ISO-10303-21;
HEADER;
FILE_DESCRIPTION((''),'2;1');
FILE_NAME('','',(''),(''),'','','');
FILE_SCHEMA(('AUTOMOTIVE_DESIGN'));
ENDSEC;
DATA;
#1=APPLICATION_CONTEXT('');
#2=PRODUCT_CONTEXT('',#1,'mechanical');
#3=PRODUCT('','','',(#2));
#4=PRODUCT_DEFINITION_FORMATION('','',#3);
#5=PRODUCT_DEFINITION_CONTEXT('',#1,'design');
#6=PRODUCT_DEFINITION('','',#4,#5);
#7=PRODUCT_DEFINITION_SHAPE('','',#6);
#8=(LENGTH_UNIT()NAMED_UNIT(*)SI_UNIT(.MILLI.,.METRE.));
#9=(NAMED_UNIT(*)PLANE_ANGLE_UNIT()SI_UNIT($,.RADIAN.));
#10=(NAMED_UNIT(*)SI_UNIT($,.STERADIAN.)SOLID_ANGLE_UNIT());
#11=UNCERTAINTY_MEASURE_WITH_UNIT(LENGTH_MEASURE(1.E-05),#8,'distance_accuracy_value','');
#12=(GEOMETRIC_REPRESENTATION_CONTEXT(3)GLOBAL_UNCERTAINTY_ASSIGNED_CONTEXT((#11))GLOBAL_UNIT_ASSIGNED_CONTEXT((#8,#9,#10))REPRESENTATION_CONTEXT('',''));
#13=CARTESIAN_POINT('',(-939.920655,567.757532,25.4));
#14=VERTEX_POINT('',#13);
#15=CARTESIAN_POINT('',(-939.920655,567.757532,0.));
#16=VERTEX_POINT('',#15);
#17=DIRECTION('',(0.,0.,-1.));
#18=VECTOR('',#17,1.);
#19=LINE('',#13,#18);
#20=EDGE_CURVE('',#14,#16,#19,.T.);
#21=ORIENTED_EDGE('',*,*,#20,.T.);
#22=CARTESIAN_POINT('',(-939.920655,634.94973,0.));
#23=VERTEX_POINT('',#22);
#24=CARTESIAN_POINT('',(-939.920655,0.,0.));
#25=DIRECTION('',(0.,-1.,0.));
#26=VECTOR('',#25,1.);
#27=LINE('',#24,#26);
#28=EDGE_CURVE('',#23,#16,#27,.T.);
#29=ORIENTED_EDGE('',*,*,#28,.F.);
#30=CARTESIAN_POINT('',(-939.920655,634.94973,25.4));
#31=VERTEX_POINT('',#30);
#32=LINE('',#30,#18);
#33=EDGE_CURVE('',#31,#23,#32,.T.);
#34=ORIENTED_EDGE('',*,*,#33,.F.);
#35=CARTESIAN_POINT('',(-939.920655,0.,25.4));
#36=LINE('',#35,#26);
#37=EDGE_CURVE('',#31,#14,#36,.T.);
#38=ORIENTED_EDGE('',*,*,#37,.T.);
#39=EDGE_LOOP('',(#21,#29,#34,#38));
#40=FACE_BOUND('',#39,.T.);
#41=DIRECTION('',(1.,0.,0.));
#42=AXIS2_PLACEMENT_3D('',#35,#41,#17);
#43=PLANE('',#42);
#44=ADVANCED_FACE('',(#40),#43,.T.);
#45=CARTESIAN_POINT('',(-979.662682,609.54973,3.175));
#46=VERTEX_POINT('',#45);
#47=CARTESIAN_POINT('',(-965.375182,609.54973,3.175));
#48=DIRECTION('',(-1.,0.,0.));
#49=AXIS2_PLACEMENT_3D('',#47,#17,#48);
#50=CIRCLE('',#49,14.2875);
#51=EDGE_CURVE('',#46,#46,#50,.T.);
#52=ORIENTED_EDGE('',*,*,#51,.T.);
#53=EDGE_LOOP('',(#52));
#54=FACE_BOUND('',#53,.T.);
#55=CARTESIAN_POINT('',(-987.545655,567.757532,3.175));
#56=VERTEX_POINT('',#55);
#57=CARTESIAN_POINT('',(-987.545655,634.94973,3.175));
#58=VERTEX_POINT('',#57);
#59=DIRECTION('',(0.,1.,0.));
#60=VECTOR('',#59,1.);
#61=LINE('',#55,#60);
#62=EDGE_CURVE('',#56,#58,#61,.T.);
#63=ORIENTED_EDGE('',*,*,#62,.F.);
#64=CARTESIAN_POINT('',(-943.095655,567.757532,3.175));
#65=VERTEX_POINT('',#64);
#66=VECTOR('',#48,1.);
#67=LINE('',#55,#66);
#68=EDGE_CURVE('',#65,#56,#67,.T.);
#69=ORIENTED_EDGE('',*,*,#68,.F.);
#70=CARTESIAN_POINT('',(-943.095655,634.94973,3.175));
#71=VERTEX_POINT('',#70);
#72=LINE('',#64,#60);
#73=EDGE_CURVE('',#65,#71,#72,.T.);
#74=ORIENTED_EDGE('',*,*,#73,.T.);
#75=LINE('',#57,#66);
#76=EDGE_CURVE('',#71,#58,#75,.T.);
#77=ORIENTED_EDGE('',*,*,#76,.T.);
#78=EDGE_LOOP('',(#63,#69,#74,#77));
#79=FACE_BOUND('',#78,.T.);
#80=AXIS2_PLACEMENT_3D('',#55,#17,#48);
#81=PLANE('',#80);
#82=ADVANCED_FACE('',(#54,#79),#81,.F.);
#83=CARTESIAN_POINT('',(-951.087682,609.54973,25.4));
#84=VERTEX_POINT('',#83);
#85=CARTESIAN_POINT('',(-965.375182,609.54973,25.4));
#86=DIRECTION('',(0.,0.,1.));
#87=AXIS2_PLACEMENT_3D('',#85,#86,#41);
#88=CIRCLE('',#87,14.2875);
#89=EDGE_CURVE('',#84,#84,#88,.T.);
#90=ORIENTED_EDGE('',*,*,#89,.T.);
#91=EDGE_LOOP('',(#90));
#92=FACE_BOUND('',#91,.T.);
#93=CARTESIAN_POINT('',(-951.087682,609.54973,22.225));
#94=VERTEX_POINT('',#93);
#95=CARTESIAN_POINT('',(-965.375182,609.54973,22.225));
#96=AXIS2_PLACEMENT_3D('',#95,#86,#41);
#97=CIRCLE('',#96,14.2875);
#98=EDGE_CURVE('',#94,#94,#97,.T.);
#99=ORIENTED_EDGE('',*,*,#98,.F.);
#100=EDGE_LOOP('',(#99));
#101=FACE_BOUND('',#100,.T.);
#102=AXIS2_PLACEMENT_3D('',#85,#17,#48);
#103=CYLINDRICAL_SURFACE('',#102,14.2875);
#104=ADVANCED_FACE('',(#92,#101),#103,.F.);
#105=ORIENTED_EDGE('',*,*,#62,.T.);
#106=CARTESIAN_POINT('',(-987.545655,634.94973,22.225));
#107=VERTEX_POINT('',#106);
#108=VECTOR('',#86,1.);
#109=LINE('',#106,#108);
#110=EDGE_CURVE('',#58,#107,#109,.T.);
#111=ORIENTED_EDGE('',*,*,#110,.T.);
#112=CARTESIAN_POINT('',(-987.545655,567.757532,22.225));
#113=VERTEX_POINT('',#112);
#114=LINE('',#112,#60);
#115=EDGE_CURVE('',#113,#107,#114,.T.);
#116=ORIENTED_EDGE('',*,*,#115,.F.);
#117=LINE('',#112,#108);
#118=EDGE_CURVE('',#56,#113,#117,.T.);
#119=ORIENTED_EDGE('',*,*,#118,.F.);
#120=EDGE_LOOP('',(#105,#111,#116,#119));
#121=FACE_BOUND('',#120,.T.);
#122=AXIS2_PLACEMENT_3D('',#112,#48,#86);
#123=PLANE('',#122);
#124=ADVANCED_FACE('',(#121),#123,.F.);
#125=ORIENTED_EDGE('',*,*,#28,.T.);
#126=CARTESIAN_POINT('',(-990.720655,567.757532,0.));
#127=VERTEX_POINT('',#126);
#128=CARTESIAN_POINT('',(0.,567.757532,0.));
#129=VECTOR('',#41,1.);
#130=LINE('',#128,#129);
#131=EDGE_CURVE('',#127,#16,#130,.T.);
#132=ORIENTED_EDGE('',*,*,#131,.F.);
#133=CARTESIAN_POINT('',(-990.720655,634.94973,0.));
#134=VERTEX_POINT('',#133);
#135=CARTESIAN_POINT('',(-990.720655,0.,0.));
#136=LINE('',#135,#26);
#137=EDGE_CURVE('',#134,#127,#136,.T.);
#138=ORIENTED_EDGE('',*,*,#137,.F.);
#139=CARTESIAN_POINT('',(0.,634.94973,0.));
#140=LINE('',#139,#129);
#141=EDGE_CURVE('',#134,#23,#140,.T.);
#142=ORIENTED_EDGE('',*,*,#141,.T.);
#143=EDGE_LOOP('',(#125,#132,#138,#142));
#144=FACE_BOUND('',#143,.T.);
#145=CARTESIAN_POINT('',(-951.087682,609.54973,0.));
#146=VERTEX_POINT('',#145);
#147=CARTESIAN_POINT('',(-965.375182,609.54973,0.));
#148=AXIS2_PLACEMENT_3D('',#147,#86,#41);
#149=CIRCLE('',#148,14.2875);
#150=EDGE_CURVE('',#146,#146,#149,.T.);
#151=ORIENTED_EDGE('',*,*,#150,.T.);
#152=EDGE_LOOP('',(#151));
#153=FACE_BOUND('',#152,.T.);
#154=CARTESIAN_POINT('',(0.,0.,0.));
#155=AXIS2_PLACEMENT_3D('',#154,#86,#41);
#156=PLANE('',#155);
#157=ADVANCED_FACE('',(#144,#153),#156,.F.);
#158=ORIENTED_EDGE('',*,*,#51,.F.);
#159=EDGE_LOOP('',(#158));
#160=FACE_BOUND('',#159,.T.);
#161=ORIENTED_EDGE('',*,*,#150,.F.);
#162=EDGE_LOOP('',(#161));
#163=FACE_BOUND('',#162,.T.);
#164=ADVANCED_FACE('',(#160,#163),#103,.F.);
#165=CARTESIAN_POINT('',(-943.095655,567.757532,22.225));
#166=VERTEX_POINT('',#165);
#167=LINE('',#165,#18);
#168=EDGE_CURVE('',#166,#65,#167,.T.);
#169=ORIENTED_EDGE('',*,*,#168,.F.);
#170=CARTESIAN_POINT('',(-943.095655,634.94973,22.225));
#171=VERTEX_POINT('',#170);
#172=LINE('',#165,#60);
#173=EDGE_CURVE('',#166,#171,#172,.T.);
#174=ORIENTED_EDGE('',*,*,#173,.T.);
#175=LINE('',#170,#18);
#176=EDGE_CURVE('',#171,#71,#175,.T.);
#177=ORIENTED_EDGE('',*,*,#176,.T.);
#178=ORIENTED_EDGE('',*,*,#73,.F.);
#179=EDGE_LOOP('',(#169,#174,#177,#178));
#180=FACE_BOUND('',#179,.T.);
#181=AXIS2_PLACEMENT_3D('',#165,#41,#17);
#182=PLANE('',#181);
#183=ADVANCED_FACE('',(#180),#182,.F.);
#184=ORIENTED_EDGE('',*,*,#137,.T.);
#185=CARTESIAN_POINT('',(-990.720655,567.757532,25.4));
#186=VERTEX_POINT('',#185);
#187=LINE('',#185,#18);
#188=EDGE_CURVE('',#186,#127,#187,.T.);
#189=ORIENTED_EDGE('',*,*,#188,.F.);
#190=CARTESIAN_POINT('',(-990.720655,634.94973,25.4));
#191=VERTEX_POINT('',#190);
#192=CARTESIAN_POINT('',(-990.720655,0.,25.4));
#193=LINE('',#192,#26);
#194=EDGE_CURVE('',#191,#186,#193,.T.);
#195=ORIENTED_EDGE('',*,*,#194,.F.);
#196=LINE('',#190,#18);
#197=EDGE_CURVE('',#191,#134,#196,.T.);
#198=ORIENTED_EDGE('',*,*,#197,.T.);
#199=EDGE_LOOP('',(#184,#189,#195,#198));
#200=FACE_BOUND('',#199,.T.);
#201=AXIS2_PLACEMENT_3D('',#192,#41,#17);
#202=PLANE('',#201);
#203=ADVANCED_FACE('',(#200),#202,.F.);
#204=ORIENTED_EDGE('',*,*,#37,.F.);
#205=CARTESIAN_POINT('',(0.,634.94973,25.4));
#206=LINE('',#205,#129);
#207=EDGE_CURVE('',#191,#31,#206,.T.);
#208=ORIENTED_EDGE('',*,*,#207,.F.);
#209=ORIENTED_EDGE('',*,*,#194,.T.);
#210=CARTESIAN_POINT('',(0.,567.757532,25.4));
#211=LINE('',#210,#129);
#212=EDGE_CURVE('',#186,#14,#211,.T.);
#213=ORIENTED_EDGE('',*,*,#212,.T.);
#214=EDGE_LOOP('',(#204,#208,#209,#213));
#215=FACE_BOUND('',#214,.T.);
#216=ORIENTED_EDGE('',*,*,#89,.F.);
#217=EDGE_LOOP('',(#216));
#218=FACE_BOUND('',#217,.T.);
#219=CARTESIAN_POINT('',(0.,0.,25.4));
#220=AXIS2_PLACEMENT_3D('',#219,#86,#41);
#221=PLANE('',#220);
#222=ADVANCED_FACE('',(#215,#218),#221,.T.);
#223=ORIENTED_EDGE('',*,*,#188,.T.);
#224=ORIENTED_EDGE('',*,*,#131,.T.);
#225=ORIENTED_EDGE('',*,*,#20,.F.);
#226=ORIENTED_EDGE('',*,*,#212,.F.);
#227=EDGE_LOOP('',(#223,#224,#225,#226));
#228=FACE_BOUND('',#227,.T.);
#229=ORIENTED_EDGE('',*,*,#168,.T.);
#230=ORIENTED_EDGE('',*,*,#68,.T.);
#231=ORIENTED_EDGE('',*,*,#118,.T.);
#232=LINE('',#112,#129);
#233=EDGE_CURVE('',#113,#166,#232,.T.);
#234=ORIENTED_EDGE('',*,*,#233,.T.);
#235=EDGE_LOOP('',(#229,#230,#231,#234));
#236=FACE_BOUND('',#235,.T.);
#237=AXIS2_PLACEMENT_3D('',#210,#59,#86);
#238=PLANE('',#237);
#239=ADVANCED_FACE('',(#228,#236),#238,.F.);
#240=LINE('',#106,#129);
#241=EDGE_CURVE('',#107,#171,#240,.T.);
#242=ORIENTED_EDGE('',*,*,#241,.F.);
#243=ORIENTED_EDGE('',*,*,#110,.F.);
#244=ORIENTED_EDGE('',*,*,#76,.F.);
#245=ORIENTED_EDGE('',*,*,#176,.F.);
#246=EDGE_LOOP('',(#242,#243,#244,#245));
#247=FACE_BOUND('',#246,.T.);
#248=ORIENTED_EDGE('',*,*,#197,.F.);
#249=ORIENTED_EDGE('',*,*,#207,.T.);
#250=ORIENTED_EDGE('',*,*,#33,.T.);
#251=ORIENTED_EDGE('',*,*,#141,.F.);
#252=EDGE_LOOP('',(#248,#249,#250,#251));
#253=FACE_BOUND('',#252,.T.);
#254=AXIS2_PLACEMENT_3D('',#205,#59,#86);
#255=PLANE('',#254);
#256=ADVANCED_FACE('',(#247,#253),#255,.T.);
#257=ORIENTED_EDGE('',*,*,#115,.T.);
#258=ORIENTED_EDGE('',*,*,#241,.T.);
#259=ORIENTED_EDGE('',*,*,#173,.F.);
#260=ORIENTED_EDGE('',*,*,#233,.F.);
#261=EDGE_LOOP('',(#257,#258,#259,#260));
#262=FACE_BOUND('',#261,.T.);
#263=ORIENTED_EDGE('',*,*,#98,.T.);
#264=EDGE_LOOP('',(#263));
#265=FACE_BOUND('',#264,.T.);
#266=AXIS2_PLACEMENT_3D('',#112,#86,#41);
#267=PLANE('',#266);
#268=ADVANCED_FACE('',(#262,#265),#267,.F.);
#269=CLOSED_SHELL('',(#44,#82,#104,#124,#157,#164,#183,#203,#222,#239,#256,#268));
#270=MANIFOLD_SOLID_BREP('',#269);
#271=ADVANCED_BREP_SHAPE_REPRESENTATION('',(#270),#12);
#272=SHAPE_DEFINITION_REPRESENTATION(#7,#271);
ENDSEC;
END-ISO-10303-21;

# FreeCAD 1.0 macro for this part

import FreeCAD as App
import Part
import Sketcher
from FreeCAD import Vector
Q = App.Units.Quantity

doc = App.newDocument("Part")
body = doc.addObject("PartDesign::Body", "Body")

# Sketch on XY plane
sketch1 = body.newObject("Sketcher::SketchObject", "Sketch")
sketch1.AttachmentSupport = (doc.getObject("XY_Plane"), [""])
sketch1.MapMode = "FlatFace"
sketch1.addGeometry([
    Part.LineSegment(Vector(-991, 635, 0), Vector(-991, 568, 0)),  # 0
    Part.LineSegment(Vector(-991, 568, 0), Vector(-940, 568, 0)),  # 1
    Part.LineSegment(Vector(-940, 568, 0), Vector(-940, 635, 0)),  # 2
    Part.LineSegment(Vector(-940, 635, 0), Vector(-991, 635, 0)),  # 3
    Part.Circle(Vector(-965, 610, 0), Vector(0, 0, 1), 14),  # 4
], False)
sketch1.addConstraint([
    Sketcher.Constraint("Coincident", 0, 2, 1, 1),
    Sketcher.Constraint("Coincident", 1, 2, 2, 1),
    Sketcher.Constraint("Coincident", 2, 2, 3, 1),
    Sketcher.Constraint("Coincident", 3, 2, 0, 1),
    Sketcher.Constraint("Vertical", 0),
    Sketcher.Constraint("Horizontal", 1),
    Sketcher.Constraint("Vertical", 2),
    Sketcher.Constraint("Horizontal", 3),
    Sketcher.Constraint("DistanceX", 1, 1, 1, 2, Q("2 in")),
    Sketcher.Constraint("Diameter", 4, Q("1.125 in")),
    Sketcher.Constraint("DistanceY", 4, 3, 2, 2, Q("1 in")),
    Sketcher.Constraint("DistanceY", 0, 2, 0, 1, 67.192198),
    Sketcher.Constraint("DistanceX", 4, 3, -1, 1, 965.375182),
    Sketcher.Constraint("DistanceY", -1, 1, 4, 3, 609.54973),
    Sketcher.Constraint("DistanceX", 0, 2, -1, 1, 990.720655),
])
pad1 = body.newObject("PartDesign::Pad", "Pad")
pad1.Profile = sketch1
pad1.Length = Q("1 in")

# Sketch on XZ plane
sketch2 = body.newObject("Sketcher::SketchObject", "Sketch001")
sketch2.AttachmentSupport = (doc.getObject("XZ_Plane"), [""])
sketch2.MapMode = "FlatFace"
sketch2.AttachmentOffset = App.Placement(Vector(0, 0, -634.94973), App.Rotation())
sketch2.addGeometry([
    Part.LineSegment(Vector(-988, 3, 0), Vector(-988, 22, 0)),
    Part.LineSegment(Vector(-988, 22, 0), Vector(-943, 22, 0)),
    Part.LineSegment(Vector(-943, 22, 0), Vector(-943, 3, 0)),
    Part.LineSegment(Vector(-943, 3, 0), Vector(-988, 3, 0)),
], False)
sketch2.addConstraint([
    Sketcher.Constraint("Coincident", 0, 2, 1, 1),
    Sketcher.Constraint("Coincident", 1, 2, 2, 1),
    Sketcher.Constraint("Coincident", 2, 2, 3, 1),
    Sketcher.Constraint("Coincident", 3, 2, 0, 1),
    Sketcher.Constraint("Vertical", 0),
    Sketcher.Constraint("Horizontal", 1),
    Sketcher.Constraint("Vertical", 2),
    Sketcher.Constraint("Horizontal", 3),
    Sketcher.Constraint("DistanceX", 1, 1, 1, 2, Q("1.75 in")),
    Sketcher.Constraint("DistanceY", 0, 1, 0, 2, Q("0.75 in")),
    Sketcher.Constraint("DistanceY", -1, 1, 0, 2, Q("0.875 in")),
    Sketcher.Constraint("DistanceX", 0, 2, -1, 1, 987.545655),
])
pocket1 = body.newObject("PartDesign::Pocket", "Pocket")
pocket1.Profile = sketch2
pocket1.Type = "ThroughAll"
pocket1.Reversed = True

doc.recompute()
